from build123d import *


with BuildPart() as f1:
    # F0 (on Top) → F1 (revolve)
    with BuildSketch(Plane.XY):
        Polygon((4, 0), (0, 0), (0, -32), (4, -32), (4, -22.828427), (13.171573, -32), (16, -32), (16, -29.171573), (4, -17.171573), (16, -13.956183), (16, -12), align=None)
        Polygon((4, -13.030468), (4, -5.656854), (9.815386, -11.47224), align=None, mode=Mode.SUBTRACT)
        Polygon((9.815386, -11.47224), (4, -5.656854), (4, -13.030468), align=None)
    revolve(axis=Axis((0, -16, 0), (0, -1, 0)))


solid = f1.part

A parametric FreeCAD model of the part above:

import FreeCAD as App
import Part
import Sketcher
Q = App.Units.Quantity


def add_polygon(sketch, points):
    """Adds a closed chain of lines whose ends are joined by coincident constraints."""
    first, n = sketch.GeometryCount, len(points)
    for a, b in zip(points, points[1:] + points[:1]):
        sketch.addGeometry(Part.LineSegment(App.Vector(*a, 0), App.Vector(*b, 0)), False)
    for i in range(n):
        sketch.addConstraint(Sketcher.Constraint("Coincident", first + i, 2, first + (i + 1) % n, 1))

doc = App.newDocument("Part")
body = doc.addObject("PartDesign::Body", "Body")

# Sketch on XY plane
sketch1 = doc.addObject("Sketcher::SketchObject", "Sketch")
body.addObject(sketch1)
sketch1.AttachmentSupport = (doc.XY_Plane, [""])
sketch1.MapMode = "FlatFace"
add_polygon(sketch1, [(4, 0), (0, 0), (0, -32), (4, -32), (4, -22.828427), (13.171573, -32), (16, -32), (16, -29.171573), (4, -17.171573), (16, -13.956183), (16, -12)])  # lines 0-10
sketch1.addConstraint(Sketcher.Constraint("Horizontal", 0))
sketch1.addConstraint(Sketcher.Constraint("Vertical", 1))
sketch1.addConstraint(Sketcher.Constraint("Horizontal", 2))
sketch1.addConstraint(Sketcher.Constraint("Vertical", 3))
sketch1.addConstraint(Sketcher.Constraint("Horizontal", 5))
sketch1.addConstraint(Sketcher.Constraint("Vertical", 6))
sketch1.addConstraint(Sketcher.Constraint("Vertical", 9))
sketch1.addConstraint(Sketcher.Constraint("Coincident", 0, 2, -1, 1))
sketch1.addConstraint(Sketcher.Constraint("Parallel", 4, 7))
sketch1.addConstraint(Sketcher.Constraint("Parallel", 7, 10))
sketch1.addConstraint(Sketcher.Constraint("Horizontal", 2, 2, 4, 2))
sketch1.addConstraint(Sketcher.Constraint("Vertical", 3, 2, 7, 2))
sketch1.addConstraint(Sketcher.Constraint("Vertical", 6, 2, 8, 2))
sketch1.addConstraint(Sketcher.Constraint("Vertical", 7, 2, 10, 2))
sketch1.addConstraint(Sketcher.Constraint("Equal", 5, 6))
sketch1.addConstraint(Sketcher.Constraint("DistanceX", 0, 2, 0, 1, 4.0))
sketch1.addConstraint(Sketcher.Constraint("DistanceY", 1, 2, 1, 1, 32.0))
sketch1.addConstraint(Sketcher.Constraint("Angle", 4, Q("-45 deg")))
sketch1.addConstraint(Sketcher.Constraint("Angle", 8, Q("14.999999 deg")))
sketch1.addConstraint(Sketcher.Constraint("DistanceX", -1, 1, 5, 2, 16.0))
sketch1.addConstraint(Sketcher.Constraint("DistanceX", 5, 1, 5, 2, 2.828427))
revolution = doc.addObject("PartDesign::Revolution", "Revolution")
body.addObject(revolution)
revolution.Profile = sketch1
revolution.ReferenceAxis = (sketch1, ["V_Axis"])
revolution.Angle = 360

doc.recompute()
